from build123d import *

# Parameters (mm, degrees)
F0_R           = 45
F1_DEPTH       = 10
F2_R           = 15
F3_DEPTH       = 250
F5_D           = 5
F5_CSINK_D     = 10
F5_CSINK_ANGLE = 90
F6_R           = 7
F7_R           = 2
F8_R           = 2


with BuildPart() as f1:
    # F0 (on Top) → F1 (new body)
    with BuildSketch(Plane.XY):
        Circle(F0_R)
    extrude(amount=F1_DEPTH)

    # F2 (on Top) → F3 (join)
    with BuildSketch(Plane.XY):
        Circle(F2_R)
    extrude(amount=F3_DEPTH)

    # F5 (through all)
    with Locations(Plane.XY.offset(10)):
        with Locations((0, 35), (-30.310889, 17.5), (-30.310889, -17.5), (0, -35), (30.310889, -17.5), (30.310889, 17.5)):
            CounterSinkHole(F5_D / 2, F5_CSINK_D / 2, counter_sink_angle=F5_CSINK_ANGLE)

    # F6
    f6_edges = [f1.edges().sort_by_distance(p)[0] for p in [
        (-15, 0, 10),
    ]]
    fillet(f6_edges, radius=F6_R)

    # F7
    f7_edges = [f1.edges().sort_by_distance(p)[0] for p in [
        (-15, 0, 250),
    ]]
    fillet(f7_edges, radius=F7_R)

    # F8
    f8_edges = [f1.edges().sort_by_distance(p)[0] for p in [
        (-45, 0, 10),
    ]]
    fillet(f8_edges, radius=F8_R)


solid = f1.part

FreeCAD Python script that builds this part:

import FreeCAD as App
import Part
import Sketcher

V = App.Vector
Q = App.Units.Quantity


def edges_at(feature, points):
    """Names of the edges that pass closest to the given points."""
    edges = feature.Shape.Edges
    near = lambda p: min(range(len(edges)), key=lambda i: edges[i].distToShape(Part.Vertex(*p))[0])
    return sorted({f"Edge{near(p) + 1}" for p in points})

doc = App.newDocument("Part")
body = doc.addObject("PartDesign::Body", "Body")

sketch1 = body.newObject("Sketcher::SketchObject", "Sketch")
sketch1.AttachmentSupport = (doc.getObject("XY_Plane"), [""])
sketch1.MapMode = "FlatFace"
sketch1.addGeometry(Part.Circle(V(0, 0, 0), V(0, 0, 1), 45), False)
sketch1.addConstraint([
    Sketcher.Constraint("Coincident", 0, 3, -1, 1),
    Sketcher.Constraint("Diameter", 0, Q("90 mm")),
])
pad1 = body.newObject("PartDesign::Pad", "Pad")
pad1.Profile = sketch1
pad1.Length = 10

sketch2 = body.newObject("Sketcher::SketchObject", "Sketch001")
sketch2.AttachmentSupport = (doc.getObject("XY_Plane"), [""])
sketch2.MapMode = "FlatFace"
sketch2.addGeometry(Part.Circle(V(0, 0, 0), V(0, 0, 1), 15), False)
sketch2.addConstraint([
    Sketcher.Constraint("Coincident", 0, 3, -1, 1),
    Sketcher.Constraint("Diameter", 0, Q("30 mm")),
])
pad2 = body.newObject("PartDesign::Pad", "Pad001")
pad2.Profile = sketch2
pad2.Length = 250

sketch3 = body.newObject("Sketcher::SketchObject", "Sketch002")
sketch3.AttachmentSupport = (doc.getObject("XY_Plane"), [""])
sketch3.MapMode = "FlatFace"
sketch3.AttachmentOffset = App.Placement(V(0, 0, 10), App.Rotation())
sketch3.addGeometry([
    Part.Circle(V(0, 35, 0), V(0, 0, 1), 2.5),
    Part.Circle(V(-30.310889, 17.5, 0), V(0, 0, 1), 2.5),
    Part.Circle(V(-30.310889, -17.5, 0), V(0, 0, 1), 2.5),
    Part.Circle(V(0, -35, 0), V(0, 0, 1), 2.5),
    Part.Circle(V(30.310889, -17.5, 0), V(0, 0, 1), 2.5),
    Part.Circle(V(30.310889, 17.5, 0), V(0, 0, 1), 2.5),
], False)
sketch3.addConstraint([
    Sketcher.Constraint("Equal", 0, 1),
    Sketcher.Constraint("Equal", 1, 2),
    Sketcher.Constraint("Equal", 2, 3),
    Sketcher.Constraint("Equal", 3, 4),
    Sketcher.Constraint("Equal", 4, 5),
    Sketcher.Constraint("Symmetric", 0, 3, 3, 3, -1, 1),
    Sketcher.Constraint("Symmetric", 1, 3, 4, 3, -1, 1),
    Sketcher.Constraint("Symmetric", 2, 3, 5, 3, -1, 1),
    Sketcher.Constraint("Symmetric", 2, 3, 4, 3, -2),
    Sketcher.Constraint("PointOnObject", 0, 3, -2),
    Sketcher.Constraint("Diameter", 0, Q("5 mm")),
    Sketcher.Constraint("DistanceY", -1, 1, 0, 3, Q("35 mm")),
    Sketcher.Constraint("DistanceY", 2, 3, 1, 3, Q("35 mm")),
    Sketcher.Constraint("DistanceX", 1, 3, -1, 1, Q("30.310889 mm")),
])
doc.recompute()
hole = body.newObject("PartDesign::Hole", "Hole")
hole.Profile = sketch3
hole.ThreadType = "None"
hole.Diameter = 5
hole.DepthType = "ThroughAll"
hole.HoleCutType = "Countersink"
hole.HoleCutDiameter = 10
hole.HoleCutCountersinkAngle = 90
doc.recompute()

fillet = body.newObject("PartDesign::Fillet", "Fillet")
fillet.Base = (hole, edges_at(hole, [(-15, 0, 10)]))
fillet.Radius = 7
doc.recompute()

fillet2 = body.newObject("PartDesign::Fillet", "Fillet001")
fillet2.Base = (fillet, edges_at(fillet, [(-15, 0, 250)]))
fillet2.Radius = 2
doc.recompute()

fillet3 = body.newObject("PartDesign::Fillet", "Fillet002")
fillet3.Base = (fillet2, edges_at(fillet2, [(-45, 0, 10)]))
fillet3.Radius = 2

doc.recompute()
